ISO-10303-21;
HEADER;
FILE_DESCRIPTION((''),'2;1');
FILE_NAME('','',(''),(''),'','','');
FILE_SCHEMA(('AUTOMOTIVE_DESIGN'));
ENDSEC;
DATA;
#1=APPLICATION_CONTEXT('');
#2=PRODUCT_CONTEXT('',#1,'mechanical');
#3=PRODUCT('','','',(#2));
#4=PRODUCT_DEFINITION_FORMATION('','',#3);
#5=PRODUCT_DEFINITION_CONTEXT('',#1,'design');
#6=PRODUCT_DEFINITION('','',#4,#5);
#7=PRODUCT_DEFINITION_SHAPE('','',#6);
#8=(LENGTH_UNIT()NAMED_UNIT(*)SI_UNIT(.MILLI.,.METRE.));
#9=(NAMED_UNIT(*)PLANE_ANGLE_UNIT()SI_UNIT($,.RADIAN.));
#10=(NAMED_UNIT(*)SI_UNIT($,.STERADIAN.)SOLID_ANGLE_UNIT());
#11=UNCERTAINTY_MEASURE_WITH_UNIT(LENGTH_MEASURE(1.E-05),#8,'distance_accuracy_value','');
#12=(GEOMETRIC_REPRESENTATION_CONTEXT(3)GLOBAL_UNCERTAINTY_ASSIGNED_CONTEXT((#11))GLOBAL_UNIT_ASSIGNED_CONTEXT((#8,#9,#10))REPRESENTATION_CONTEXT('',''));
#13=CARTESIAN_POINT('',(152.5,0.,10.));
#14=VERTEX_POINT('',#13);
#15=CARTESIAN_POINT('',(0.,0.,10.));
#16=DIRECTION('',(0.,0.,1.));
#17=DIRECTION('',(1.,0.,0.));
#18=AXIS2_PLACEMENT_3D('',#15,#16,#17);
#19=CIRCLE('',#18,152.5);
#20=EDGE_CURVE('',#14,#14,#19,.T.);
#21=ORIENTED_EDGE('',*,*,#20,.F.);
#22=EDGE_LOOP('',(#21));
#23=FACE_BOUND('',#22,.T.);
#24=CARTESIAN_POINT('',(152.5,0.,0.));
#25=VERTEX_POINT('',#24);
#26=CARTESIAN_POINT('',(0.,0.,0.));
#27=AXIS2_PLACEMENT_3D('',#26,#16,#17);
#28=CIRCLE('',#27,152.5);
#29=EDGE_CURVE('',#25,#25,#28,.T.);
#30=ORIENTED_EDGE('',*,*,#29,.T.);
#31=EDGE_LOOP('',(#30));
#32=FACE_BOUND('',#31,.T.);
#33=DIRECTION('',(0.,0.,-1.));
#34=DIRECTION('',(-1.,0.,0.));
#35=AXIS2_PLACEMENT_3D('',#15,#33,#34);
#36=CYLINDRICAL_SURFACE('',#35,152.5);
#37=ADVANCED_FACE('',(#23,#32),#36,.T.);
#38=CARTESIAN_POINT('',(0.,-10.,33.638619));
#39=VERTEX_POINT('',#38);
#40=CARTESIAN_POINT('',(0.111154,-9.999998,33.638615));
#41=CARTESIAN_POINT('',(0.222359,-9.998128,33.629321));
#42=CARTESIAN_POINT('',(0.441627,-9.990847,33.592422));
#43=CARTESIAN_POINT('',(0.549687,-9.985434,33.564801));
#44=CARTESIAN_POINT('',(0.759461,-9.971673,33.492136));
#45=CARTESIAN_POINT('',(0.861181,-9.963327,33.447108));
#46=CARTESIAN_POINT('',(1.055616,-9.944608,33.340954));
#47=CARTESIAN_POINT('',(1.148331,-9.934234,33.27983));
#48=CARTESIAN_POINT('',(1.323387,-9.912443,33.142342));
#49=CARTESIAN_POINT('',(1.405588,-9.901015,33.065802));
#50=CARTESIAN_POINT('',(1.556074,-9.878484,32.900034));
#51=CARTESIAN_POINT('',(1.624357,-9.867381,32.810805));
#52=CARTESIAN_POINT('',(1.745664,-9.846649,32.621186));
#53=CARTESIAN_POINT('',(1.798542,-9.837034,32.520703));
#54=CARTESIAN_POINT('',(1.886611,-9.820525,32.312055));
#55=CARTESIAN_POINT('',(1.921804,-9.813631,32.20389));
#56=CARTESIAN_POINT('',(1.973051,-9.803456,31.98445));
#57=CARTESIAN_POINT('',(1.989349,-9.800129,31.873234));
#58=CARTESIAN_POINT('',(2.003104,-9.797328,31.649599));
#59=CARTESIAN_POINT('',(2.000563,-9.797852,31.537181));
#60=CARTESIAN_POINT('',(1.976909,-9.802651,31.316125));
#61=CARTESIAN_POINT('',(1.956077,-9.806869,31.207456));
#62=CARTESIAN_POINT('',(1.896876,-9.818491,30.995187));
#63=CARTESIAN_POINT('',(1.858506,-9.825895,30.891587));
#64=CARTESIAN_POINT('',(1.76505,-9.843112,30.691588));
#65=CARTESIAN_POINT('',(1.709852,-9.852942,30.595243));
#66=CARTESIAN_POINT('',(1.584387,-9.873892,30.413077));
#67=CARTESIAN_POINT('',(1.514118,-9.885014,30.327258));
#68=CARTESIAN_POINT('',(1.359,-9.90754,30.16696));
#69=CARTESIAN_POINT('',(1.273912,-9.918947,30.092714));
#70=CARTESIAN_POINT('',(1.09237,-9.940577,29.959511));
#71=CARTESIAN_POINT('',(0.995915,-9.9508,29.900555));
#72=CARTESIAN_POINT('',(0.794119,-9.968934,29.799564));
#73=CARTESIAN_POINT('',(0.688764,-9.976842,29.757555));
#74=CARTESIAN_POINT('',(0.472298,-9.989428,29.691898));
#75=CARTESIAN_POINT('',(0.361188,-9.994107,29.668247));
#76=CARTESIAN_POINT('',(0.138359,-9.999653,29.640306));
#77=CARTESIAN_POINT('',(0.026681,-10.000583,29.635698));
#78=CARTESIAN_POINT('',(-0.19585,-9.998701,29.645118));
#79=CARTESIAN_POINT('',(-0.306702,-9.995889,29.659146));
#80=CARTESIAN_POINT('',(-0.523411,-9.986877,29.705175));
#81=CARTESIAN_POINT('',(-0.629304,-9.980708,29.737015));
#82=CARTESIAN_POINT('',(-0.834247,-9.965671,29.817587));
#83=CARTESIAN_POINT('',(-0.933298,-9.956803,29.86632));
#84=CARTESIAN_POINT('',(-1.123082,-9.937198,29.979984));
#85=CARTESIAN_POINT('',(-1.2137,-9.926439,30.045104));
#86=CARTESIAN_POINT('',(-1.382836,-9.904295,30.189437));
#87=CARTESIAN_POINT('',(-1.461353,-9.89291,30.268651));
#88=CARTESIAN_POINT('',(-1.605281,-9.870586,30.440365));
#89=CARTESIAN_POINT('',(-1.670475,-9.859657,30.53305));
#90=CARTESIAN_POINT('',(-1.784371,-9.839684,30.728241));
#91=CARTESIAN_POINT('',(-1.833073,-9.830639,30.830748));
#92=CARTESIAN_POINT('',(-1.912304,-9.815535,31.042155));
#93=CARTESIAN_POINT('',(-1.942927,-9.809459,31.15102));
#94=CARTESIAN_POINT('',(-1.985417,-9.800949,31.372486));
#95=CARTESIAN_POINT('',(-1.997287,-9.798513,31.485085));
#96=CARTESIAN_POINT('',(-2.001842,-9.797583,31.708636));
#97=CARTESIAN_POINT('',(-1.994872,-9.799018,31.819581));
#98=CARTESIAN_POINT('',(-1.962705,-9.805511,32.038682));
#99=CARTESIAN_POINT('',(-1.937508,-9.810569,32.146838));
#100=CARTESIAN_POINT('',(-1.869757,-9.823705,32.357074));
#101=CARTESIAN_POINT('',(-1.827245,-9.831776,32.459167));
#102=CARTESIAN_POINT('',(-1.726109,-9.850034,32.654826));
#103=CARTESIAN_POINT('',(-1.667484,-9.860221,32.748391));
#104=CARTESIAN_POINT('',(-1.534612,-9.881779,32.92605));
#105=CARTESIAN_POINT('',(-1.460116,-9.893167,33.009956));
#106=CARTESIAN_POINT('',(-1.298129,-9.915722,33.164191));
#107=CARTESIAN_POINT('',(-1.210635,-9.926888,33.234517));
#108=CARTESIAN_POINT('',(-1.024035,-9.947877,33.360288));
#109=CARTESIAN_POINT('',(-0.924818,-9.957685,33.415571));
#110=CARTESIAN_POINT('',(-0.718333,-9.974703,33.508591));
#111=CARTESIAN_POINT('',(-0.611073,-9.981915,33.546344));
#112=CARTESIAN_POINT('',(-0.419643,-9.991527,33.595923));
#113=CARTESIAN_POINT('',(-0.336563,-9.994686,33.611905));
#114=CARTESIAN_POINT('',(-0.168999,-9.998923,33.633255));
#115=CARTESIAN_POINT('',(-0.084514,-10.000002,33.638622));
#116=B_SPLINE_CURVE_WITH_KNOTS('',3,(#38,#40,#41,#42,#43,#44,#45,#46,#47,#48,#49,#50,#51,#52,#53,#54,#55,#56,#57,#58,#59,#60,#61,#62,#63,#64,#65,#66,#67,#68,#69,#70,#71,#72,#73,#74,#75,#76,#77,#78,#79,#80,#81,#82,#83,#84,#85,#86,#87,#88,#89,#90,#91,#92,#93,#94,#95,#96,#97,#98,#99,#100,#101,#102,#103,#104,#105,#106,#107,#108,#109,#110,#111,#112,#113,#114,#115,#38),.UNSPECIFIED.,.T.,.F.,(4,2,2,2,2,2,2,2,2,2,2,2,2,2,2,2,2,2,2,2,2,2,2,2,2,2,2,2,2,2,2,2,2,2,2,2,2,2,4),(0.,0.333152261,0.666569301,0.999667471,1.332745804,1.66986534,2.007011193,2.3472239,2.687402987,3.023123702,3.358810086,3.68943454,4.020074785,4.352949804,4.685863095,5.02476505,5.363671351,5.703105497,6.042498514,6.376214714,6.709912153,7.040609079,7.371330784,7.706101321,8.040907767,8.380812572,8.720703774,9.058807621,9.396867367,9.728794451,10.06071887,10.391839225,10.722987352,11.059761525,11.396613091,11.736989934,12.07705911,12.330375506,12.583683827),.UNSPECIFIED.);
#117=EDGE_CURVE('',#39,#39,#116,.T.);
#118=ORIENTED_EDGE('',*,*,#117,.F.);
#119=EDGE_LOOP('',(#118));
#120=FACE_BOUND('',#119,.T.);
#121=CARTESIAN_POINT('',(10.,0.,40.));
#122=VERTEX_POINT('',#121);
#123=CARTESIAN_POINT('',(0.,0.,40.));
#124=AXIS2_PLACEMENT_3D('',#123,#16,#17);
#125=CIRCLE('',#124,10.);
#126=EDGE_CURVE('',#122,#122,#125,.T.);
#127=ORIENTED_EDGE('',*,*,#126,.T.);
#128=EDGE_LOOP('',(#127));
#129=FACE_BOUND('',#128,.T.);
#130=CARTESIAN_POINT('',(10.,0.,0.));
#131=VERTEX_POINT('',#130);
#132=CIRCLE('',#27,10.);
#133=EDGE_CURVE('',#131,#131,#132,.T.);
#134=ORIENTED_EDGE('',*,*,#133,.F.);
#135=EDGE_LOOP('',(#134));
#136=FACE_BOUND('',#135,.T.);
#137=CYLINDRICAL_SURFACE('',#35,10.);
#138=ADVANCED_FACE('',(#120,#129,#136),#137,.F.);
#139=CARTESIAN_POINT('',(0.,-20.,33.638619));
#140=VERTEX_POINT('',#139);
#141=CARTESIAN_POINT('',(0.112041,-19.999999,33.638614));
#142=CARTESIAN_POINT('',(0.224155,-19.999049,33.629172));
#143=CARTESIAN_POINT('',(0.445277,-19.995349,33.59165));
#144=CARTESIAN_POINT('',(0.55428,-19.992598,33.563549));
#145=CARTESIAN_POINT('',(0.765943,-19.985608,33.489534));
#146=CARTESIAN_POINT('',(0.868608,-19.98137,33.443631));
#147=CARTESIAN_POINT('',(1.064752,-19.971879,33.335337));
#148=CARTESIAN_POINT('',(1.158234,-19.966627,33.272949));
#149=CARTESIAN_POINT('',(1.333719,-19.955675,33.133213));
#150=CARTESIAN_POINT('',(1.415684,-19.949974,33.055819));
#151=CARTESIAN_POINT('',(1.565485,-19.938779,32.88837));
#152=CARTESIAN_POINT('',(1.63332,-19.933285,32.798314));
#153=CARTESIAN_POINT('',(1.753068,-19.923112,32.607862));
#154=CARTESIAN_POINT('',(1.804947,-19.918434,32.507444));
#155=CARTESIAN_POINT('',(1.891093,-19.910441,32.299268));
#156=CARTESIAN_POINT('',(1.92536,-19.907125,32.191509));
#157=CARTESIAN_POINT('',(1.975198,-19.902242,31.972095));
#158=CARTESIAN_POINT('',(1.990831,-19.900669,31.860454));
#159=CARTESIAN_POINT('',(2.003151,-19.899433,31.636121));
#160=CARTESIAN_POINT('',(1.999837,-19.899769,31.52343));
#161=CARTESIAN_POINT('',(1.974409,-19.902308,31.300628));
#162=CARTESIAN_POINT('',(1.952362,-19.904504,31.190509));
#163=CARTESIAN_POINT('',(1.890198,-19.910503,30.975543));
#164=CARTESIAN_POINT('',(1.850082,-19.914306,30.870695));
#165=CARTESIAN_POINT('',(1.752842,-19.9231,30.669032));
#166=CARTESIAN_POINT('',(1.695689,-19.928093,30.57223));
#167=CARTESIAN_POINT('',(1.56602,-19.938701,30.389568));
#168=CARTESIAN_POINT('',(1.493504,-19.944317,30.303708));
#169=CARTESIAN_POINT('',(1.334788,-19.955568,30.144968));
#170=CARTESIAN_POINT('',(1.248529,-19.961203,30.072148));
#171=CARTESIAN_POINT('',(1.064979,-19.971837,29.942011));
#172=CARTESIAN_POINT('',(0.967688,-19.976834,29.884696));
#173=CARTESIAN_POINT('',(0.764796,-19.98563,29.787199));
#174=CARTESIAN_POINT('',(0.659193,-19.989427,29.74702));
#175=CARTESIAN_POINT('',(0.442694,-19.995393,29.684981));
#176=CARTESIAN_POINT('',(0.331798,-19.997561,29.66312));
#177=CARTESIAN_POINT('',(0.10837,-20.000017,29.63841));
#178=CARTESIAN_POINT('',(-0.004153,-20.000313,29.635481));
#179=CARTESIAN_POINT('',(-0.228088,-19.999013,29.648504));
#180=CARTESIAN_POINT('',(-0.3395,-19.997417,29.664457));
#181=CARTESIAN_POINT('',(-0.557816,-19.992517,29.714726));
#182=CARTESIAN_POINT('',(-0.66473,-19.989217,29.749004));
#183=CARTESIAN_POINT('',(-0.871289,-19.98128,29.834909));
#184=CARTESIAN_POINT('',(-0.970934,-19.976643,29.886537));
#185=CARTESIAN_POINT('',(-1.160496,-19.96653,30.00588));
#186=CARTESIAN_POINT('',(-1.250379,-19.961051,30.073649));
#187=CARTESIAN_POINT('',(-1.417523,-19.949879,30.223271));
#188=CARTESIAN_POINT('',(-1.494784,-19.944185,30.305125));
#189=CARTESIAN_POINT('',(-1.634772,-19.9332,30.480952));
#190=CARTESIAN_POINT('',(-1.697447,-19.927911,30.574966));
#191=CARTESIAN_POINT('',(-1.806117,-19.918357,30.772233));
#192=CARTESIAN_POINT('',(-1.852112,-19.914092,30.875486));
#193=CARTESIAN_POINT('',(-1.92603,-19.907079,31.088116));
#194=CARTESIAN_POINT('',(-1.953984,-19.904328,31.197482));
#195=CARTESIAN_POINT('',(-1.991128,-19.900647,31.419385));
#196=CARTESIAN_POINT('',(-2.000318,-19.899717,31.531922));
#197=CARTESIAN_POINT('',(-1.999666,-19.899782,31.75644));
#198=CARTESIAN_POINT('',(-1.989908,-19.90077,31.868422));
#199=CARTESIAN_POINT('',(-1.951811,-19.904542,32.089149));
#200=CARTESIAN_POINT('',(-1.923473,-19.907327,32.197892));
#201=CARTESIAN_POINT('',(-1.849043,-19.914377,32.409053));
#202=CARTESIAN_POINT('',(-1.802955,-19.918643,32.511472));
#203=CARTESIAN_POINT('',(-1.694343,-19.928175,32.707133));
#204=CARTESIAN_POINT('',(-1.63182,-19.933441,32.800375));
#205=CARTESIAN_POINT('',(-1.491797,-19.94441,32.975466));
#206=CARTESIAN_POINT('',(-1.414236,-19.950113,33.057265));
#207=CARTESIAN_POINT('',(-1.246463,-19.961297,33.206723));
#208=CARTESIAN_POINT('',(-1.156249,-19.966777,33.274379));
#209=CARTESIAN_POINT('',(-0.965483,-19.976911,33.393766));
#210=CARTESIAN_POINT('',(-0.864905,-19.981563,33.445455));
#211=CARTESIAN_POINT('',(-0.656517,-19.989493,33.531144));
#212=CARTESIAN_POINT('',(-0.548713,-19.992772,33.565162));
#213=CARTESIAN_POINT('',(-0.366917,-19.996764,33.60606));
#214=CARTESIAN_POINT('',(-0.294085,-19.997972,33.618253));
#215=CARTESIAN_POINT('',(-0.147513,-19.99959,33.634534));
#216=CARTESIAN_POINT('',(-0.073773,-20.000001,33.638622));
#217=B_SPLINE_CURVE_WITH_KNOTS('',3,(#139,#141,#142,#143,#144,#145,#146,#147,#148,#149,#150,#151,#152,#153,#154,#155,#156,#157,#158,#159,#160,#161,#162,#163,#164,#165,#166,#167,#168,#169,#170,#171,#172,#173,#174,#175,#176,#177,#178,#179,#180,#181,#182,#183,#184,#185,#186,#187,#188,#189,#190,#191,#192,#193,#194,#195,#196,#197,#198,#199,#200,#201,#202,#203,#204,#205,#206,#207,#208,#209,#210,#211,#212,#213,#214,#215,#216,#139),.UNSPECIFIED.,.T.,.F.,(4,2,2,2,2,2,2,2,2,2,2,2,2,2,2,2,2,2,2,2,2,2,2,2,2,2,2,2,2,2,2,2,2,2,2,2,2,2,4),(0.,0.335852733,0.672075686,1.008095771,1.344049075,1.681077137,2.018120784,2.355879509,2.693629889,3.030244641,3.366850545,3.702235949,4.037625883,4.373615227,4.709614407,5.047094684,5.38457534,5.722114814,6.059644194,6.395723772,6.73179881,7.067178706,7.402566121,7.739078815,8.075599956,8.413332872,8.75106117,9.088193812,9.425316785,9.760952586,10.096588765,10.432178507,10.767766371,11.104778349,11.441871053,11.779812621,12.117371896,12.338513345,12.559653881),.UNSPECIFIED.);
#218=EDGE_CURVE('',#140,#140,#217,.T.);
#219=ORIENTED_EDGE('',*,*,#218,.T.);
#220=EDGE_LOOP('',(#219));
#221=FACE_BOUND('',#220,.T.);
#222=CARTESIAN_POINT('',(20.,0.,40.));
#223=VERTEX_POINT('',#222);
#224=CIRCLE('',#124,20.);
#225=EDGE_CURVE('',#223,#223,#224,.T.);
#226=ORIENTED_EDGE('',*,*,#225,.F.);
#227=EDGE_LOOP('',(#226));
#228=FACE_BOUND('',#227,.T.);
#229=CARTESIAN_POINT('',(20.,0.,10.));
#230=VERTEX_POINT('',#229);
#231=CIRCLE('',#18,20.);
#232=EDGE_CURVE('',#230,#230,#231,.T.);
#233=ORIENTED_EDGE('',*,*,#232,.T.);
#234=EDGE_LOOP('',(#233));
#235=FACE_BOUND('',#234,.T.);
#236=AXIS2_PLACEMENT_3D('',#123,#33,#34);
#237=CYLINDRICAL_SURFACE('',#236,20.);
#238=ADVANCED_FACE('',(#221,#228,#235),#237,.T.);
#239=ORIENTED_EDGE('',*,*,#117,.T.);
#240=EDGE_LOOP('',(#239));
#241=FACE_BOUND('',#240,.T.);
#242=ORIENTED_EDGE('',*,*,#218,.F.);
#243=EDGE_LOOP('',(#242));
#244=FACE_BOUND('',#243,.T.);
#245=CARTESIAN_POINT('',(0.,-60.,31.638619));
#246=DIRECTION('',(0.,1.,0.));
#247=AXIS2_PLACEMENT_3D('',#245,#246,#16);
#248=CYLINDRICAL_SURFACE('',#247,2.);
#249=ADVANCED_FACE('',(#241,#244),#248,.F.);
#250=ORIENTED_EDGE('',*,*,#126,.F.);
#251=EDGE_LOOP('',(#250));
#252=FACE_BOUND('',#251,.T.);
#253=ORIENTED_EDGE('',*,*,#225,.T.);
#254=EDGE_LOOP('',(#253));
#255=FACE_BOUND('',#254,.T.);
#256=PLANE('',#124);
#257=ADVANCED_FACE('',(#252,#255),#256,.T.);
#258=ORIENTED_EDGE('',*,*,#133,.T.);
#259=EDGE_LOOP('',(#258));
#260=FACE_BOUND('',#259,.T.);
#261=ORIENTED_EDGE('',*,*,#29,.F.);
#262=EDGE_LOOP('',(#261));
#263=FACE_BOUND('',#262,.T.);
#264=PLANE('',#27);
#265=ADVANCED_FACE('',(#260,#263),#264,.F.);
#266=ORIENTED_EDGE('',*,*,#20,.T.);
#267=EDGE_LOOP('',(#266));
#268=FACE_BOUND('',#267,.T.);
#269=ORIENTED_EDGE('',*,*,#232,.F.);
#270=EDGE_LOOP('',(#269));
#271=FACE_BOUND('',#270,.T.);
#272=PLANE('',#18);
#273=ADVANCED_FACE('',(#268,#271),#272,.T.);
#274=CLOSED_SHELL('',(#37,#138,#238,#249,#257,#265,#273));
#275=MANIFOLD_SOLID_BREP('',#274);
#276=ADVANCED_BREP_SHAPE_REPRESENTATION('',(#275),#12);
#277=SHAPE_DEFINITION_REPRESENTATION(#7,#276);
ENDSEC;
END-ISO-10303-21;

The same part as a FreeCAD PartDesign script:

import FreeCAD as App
import Part
import Sketcher
Q = App.Units.Quantity

doc = App.newDocument("Part")
params = doc.addObject("Spreadsheet::Sheet", "Params")
for row, (alias, value) in enumerate([
    ("sketch1_diameter", "305 mm"),
    ("sketch1_diameter2", "20 mm"),
    ("pad1_length", "10 mm"),
    ("sketch2_diameter", "40 mm"),
    ("sketch2_diameter2", "20 mm"),
    ("pad2_length", "30 mm"),
    ("sketch3_diameter", "4 mm"),
    ("pocket1_length", "60 mm"),
], start=1):
    params.set(f"A{row}", alias)
    params.set(f"B{row}", "=" + value)
    params.setAlias(f"B{row}", alias)

body = doc.addObject("PartDesign::Body", "Body")

# Sketch on XY plane
sketch1 = body.newObject("Sketcher::SketchObject", "Sketch")
sketch1.AttachmentSupport = (doc.getObject("XY_Plane"), [""])
sketch1.MapMode = "FlatFace"
sketch1.addGeometry([
    Part.Circle(App.Vector(0, 0, 0), App.Vector(0, 0, 1), 152),
    Part.Circle(App.Vector(0, 0, 0), App.Vector(0, 0, 1), 10),
], False)
sketch1.addConstraint([
    Sketcher.Constraint("Coincident", 0, 3, -1, 1),
    Sketcher.Constraint("Coincident", 1, 3, -1, 1),
    Sketcher.Constraint("Diameter", 0, Q("305 mm")),
    Sketcher.Constraint("Diameter", 1, Q("20 mm")),
])
sketch1.setExpression("Constraints[2]", "Params.sketch1_diameter")
sketch1.setExpression("Constraints[3]", "Params.sketch1_diameter2")
pad1 = body.newObject("PartDesign::Pad", "Pad")
pad1.Profile = sketch1
pad1.setExpression("Length", "Params.pad1_length")

# Sketch on XY plane
sketch2 = body.newObject("Sketcher::SketchObject", "Sketch001")
sketch2.AttachmentSupport = (doc.getObject("XY_Plane"), [""])
sketch2.MapMode = "FlatFace"
sketch2.AttachmentOffset = App.Placement(App.Vector(0, 0, 10), App.Rotation())
sketch2.addGeometry([
    Part.Circle(App.Vector(0, 0, 0), App.Vector(0, 0, 1), 20),
    Part.Circle(App.Vector(0, 0, 0), App.Vector(0, 0, 1), 10),
], False)
sketch2.addConstraint([
    Sketcher.Constraint("Coincident", 0, 3, -1, 1),
    Sketcher.Constraint("Coincident", 1, 3, -1, 1),
    Sketcher.Constraint("Diameter", 0, Q("40 mm")),
    Sketcher.Constraint("Diameter", 1, Q("20 mm")),
])
sketch2.setExpression("Constraints[2]", "Params.sketch2_diameter")
sketch2.setExpression("Constraints[3]", "Params.sketch2_diameter2")
pad2 = body.newObject("PartDesign::Pad", "Pad001")
pad2.Profile = sketch2
pad2.setExpression("Length", "Params.pad2_length")

# Sketch on XZ plane
sketch3 = body.newObject("Sketcher::SketchObject", "Sketch002")
sketch3.AttachmentSupport = (doc.getObject("XZ_Plane"), [""])
sketch3.MapMode = "FlatFace"
sketch3.addGeometry(Part.Circle(App.Vector(0, 31.6, 0), App.Vector(0, 0, 1), 2), False)
sketch3.addConstraint([
    Sketcher.Constraint("PointOnObject", 0, 3, -2),
    Sketcher.Constraint("Diameter", 0, Q("4 mm")),
    Sketcher.Constraint("DistanceY", -1, 1, 0, 3, Q("31.638619 mm")),
])
sketch3.setExpression("Constraints[1]", "Params.sketch3_diameter")
pocket1 = body.newObject("PartDesign::Pocket", "Pocket")
pocket1.Profile = sketch3
pocket1.setExpression("Length", "Params.pocket1_length")
pocket1.Reversed = True

doc.recompute()
